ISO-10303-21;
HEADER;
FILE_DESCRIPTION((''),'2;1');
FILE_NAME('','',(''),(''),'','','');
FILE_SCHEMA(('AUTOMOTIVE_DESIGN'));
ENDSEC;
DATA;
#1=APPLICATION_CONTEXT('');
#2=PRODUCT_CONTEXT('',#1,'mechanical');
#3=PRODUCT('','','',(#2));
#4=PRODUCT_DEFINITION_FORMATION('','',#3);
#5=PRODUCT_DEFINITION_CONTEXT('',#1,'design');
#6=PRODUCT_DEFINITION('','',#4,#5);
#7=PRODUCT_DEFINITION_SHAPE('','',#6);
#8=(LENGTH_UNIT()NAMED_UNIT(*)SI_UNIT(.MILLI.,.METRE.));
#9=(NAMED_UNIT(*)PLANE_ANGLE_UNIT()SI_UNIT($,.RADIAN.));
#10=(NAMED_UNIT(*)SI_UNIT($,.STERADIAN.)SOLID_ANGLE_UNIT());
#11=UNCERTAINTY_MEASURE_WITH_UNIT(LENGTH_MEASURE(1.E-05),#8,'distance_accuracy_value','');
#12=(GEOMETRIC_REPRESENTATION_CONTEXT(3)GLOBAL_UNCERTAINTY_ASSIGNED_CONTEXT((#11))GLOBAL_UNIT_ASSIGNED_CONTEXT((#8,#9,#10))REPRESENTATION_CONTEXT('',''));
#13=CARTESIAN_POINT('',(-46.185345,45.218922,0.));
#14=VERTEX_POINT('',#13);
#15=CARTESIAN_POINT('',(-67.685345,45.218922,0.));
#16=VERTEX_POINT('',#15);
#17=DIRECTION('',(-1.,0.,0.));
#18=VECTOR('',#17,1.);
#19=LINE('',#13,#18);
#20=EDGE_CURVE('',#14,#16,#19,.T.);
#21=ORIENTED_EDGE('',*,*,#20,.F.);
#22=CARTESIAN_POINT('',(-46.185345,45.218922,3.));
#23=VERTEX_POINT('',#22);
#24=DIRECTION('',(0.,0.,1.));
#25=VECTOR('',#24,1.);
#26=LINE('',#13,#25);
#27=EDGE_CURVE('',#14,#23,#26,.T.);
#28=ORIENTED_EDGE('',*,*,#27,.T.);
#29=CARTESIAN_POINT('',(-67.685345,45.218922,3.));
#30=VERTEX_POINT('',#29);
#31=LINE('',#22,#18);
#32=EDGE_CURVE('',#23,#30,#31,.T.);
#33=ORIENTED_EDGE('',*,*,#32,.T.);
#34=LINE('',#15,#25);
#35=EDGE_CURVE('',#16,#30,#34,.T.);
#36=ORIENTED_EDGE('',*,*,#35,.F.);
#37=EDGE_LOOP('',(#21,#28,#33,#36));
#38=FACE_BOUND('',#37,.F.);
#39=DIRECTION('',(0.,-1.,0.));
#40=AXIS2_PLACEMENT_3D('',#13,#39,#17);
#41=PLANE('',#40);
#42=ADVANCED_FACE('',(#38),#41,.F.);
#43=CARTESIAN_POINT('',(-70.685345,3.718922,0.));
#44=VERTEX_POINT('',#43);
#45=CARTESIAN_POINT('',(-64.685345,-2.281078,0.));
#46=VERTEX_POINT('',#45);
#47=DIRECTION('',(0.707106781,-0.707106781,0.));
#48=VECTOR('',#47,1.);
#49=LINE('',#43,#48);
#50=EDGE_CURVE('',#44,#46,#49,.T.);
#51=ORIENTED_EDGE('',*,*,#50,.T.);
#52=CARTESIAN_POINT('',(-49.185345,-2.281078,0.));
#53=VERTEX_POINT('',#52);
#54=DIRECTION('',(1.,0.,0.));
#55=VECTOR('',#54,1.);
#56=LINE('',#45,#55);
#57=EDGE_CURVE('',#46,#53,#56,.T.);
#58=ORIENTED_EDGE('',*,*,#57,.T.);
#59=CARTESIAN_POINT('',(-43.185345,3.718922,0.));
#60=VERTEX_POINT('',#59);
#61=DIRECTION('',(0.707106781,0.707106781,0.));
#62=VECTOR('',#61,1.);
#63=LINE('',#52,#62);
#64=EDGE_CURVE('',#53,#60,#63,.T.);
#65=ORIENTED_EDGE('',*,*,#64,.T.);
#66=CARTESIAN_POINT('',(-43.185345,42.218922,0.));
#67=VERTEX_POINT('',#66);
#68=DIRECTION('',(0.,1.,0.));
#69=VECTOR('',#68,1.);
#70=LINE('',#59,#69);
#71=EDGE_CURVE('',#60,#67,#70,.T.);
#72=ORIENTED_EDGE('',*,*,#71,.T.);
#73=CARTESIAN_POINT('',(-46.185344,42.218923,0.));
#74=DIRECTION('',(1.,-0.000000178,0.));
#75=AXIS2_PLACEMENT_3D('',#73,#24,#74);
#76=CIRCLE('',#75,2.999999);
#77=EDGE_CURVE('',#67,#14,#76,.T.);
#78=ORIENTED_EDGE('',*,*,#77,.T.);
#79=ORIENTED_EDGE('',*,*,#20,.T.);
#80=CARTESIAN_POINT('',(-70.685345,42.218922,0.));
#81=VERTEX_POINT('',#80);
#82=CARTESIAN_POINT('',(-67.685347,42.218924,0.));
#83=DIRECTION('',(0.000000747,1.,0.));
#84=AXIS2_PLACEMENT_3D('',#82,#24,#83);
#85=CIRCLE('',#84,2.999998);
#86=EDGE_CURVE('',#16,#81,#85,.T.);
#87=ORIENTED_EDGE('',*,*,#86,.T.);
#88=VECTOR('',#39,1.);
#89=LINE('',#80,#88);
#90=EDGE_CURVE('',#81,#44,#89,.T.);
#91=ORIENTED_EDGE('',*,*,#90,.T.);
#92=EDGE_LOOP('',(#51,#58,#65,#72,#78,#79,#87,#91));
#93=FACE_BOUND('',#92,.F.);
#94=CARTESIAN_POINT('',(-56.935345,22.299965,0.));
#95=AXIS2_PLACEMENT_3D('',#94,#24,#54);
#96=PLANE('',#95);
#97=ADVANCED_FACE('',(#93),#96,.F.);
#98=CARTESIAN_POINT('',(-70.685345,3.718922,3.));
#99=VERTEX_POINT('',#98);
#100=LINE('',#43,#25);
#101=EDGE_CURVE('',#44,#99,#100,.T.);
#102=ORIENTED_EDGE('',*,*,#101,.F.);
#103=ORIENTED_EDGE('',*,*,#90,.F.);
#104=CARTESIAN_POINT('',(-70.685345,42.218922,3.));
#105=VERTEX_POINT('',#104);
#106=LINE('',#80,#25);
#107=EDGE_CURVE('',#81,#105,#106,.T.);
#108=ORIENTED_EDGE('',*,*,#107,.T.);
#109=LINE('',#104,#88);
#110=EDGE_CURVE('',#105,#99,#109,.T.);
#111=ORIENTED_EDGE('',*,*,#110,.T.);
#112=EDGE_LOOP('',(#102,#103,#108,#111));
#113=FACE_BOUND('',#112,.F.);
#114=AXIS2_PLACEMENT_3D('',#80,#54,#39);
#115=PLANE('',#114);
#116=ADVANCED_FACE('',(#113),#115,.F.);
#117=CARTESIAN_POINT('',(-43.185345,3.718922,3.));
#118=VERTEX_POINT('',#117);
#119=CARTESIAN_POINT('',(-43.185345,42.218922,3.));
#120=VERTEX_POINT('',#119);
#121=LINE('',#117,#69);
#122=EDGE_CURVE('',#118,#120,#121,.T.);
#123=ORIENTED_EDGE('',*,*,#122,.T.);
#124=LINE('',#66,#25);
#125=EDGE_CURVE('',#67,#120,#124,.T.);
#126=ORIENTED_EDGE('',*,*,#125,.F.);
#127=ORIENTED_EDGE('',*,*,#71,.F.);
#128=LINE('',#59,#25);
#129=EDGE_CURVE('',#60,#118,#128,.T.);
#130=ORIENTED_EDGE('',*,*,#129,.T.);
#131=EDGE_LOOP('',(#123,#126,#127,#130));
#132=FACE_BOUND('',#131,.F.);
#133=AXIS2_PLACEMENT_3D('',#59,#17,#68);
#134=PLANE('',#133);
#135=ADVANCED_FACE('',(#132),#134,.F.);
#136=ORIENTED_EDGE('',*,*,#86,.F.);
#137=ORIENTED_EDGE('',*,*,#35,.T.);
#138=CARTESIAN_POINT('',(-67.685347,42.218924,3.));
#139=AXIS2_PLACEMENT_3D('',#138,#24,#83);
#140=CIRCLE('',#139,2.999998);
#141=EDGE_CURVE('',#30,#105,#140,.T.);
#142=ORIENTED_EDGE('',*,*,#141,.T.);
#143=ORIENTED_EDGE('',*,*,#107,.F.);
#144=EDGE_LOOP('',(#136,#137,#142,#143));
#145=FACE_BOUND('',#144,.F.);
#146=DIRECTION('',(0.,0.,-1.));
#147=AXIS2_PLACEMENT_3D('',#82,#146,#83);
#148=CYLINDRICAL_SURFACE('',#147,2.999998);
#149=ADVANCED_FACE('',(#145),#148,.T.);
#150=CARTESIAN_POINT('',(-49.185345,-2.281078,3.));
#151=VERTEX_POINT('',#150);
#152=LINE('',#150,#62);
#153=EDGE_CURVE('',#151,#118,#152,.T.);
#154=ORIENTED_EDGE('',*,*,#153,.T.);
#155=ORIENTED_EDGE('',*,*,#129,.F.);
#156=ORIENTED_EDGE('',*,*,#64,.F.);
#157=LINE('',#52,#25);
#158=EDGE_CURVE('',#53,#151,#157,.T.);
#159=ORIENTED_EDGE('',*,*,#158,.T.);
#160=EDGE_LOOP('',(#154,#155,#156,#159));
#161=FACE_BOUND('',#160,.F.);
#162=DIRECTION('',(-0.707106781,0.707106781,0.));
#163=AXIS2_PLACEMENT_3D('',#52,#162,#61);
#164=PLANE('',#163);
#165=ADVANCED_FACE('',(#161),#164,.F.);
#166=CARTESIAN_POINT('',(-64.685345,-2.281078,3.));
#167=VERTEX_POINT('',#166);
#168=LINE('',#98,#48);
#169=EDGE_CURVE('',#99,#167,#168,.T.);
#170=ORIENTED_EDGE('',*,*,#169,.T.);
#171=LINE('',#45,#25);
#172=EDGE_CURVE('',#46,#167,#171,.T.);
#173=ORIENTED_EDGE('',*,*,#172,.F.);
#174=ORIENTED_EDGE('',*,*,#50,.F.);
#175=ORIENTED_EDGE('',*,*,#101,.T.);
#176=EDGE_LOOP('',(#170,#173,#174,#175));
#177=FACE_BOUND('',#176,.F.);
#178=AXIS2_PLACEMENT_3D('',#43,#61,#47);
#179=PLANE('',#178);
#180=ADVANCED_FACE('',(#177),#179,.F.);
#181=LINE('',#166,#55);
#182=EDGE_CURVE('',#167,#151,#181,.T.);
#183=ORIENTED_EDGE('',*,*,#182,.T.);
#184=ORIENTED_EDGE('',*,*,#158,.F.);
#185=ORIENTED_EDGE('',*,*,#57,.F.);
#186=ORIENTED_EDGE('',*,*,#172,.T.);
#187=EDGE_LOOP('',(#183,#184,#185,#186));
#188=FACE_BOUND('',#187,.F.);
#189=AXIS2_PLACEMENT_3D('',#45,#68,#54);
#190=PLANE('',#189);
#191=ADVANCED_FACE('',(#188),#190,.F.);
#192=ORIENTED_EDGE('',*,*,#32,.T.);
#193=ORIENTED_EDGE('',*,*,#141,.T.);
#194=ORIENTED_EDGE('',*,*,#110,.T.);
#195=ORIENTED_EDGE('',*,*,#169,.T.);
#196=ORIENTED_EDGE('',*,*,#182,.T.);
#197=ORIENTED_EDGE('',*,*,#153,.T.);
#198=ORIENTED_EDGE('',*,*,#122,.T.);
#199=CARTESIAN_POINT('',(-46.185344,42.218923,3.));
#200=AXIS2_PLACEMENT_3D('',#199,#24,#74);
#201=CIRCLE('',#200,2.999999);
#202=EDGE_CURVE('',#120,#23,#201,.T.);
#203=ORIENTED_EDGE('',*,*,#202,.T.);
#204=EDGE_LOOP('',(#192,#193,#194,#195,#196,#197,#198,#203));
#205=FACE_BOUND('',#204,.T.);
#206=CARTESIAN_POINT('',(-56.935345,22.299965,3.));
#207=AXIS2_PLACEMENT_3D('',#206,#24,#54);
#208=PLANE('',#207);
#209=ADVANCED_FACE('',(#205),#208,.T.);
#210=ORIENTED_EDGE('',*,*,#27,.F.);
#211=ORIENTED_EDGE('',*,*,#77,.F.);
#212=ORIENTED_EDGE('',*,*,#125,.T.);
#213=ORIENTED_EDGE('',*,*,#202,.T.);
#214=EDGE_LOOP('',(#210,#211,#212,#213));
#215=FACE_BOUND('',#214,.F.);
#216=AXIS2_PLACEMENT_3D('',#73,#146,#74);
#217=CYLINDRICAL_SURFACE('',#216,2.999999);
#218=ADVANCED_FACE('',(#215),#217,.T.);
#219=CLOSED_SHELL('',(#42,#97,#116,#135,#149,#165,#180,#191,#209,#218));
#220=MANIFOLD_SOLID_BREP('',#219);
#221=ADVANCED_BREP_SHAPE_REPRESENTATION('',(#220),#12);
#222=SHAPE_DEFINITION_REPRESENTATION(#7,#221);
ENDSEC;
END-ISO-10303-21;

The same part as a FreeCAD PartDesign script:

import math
import FreeCAD as App
import Part
import Sketcher
from FreeCAD import Vector
Q = App.Units.Quantity

doc = App.newDocument("Part")
body = doc.addObject("PartDesign::Body", "Body")

# Sketch on XY plane
sketch1 = doc.addObject("Sketcher::SketchObject", "Sketch")
body.addObject(sketch1)
sketch1.AttachmentSupport = (doc.XY_Plane, [""])
sketch1.MapMode = "FlatFace"
sketch1.addGeometry([
    Part.LineSegment(Vector(-46.2, 45.2, 0), Vector(-67.7, 45.2, 0)),  # 0
    Part.ArcOfCircle(Part.Circle(Vector(-67.7, 42.2, 0), Vector(0, 0, 1), 3), math.radians(90), math.radians(180)),  # 1
    Part.LineSegment(Vector(-70.7, 42.2, 0), Vector(-70.7, 3.7, 0)),  # 2
    Part.LineSegment(Vector(-70.7, 3.7, 0), Vector(-64.7, -2.3, 0)),  # 3
    Part.LineSegment(Vector(-64.7, -2.3, 0), Vector(-49.2, -2.3, 0)),  # 4
    Part.LineSegment(Vector(-49.2, -2.3, 0), Vector(-43.2, 3.7, 0)),  # 5
    Part.LineSegment(Vector(-43.2, 3.7, 0), Vector(-43.2, 42.2, 0)),  # 6
    Part.ArcOfCircle(Part.Circle(Vector(-46.2, 42.2, 0), Vector(0, 0, 1), 3), math.radians(0), math.radians(90)),  # 7
], False)
sketch1.addConstraint([
    Sketcher.Constraint("Tangent", 0, 2, 1, 1),
    Sketcher.Constraint("Tangent", 1, 2, 2, 1),
    Sketcher.Constraint("Coincident", 2, 2, 3, 1),
    Sketcher.Constraint("Coincident", 3, 2, 4, 1),
    Sketcher.Constraint("Coincident", 4, 2, 5, 1),
    Sketcher.Constraint("Coincident", 5, 2, 6, 1),
    Sketcher.Constraint("Tangent", 6, 2, 7, 1),
    Sketcher.Constraint("Tangent", 7, 2, 0, 1),
    Sketcher.Constraint("Horizontal", 0),
    Sketcher.Constraint("Vertical", 2),
    Sketcher.Constraint("Horizontal", 4),
    Sketcher.Constraint("Vertical", 6),
    Sketcher.Constraint("Equal", 1, 7),
    Sketcher.Constraint("Perpendicular", 3, 5),
    Sketcher.Constraint("Horizontal", 2, 2, 5, 2),
    Sketcher.Constraint("Equal", 3, 5),
    Sketcher.Constraint("Radius", 7, Q("2.999999 mm")),
    Sketcher.Constraint("DistanceX", 0, 2, 0, 1, Q("21.5 mm")),
    Sketcher.Constraint("DistanceX", 4, 1, 4, 2, Q("15.5 mm")),
    Sketcher.Constraint("DistanceY", 2, 2, 2, 1, Q("38.5 mm")),
    Sketcher.Constraint("DistanceY", -1, 1, 7, 2, Q("45.218922 mm")),
    Sketcher.Constraint("DistanceX", 1, 3, -1, 1, Q("67.685347 mm")),
])
pad1 = doc.addObject("PartDesign::Pad", "Pad")
body.addObject(pad1)
pad1.Profile = sketch1
pad1.Length = 3

doc.recompute()
